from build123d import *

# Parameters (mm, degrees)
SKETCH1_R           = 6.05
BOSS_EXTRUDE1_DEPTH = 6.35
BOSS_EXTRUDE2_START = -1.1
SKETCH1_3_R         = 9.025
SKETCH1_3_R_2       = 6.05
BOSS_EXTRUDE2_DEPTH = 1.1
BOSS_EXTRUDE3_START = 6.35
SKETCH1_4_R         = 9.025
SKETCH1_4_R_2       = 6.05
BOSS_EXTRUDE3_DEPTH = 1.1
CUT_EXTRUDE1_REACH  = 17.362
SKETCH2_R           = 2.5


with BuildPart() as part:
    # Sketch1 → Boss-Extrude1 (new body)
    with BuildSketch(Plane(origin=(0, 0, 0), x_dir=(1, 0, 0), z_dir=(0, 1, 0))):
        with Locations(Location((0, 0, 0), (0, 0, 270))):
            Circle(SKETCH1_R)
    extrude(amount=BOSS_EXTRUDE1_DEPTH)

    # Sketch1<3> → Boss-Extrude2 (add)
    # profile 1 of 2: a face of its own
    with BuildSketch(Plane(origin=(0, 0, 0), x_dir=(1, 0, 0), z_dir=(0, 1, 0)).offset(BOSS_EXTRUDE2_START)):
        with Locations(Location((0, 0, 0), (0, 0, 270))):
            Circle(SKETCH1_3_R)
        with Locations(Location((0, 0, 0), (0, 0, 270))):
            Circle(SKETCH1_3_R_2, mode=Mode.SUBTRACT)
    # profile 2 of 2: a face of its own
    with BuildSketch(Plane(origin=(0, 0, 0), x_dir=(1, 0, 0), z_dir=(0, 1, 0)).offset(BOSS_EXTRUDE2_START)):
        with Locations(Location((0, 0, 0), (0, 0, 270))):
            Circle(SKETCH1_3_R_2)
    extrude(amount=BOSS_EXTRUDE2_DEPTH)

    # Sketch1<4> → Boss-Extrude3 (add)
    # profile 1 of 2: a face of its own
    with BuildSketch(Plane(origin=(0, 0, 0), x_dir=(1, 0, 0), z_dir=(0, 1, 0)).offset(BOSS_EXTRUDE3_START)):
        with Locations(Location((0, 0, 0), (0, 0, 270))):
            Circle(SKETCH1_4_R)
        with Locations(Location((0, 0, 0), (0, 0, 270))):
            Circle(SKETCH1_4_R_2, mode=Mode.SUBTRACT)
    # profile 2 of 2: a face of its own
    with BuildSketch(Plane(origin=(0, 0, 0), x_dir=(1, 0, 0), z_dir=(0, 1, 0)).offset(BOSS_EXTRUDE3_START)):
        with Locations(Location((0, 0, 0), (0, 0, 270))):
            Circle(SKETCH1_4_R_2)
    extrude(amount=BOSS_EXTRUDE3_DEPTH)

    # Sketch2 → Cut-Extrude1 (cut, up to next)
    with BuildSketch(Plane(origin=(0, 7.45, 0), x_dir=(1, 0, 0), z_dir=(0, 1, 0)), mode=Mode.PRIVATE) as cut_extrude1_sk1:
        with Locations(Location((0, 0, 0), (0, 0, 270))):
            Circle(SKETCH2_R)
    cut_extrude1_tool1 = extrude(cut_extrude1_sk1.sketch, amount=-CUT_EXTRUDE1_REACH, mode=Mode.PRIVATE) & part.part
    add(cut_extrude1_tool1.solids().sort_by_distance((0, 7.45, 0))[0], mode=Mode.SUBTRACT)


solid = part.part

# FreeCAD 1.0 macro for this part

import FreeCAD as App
import Part
import Sketcher
from FreeCAD import Vector

doc = App.newDocument("Part")
body = doc.addObject("PartDesign::Body", "Body")

# Sketch on XZ plane
sketch1 = body.newObject("Sketcher::SketchObject", "Sketch")
sketch1.AttachmentSupport = (doc.getObject("XZ_Plane"), [""])
sketch1.MapMode = "FlatFace"
sketch1.addGeometry(Part.Circle(Vector(0, 0, 0), Vector(0, 0, 1), 6), False)
sketch1.addConstraint([
    Sketcher.Constraint("Coincident", 0, 3, -1, 1),
    Sketcher.Constraint("Diameter", 0, 12.1),
])
pad1 = body.newObject("PartDesign::Pad", "Pad")
pad1.Profile = sketch1
pad1.Length = 6.35
pad1.Reversed = True

# Sketch on XZ plane
sketch2 = body.newObject("Sketcher::SketchObject", "Sketch001")
sketch2.AttachmentSupport = (doc.getObject("XZ_Plane"), [""])
sketch2.MapMode = "FlatFace"
sketch2.AttachmentOffset = App.Placement(Vector(0, 0, 1.1), App.Rotation())
sketch2.addGeometry(Part.Circle(Vector(0, 0, 0), Vector(0, 0, 1), 9), False)
sketch2.addConstraint([
    Sketcher.Constraint("Coincident", 0, 3, -1, 1),
    Sketcher.Constraint("Diameter", 0, 18.05),
])
pad2 = body.newObject("PartDesign::Pad", "Pad001")
pad2.Profile = sketch2
pad2.Length = 1.1
pad2.Reversed = True

# Sketch on XZ plane
sketch3 = body.newObject("Sketcher::SketchObject", "Sketch002")
sketch3.AttachmentSupport = (doc.getObject("XZ_Plane"), [""])
sketch3.MapMode = "FlatFace"
sketch3.AttachmentOffset = App.Placement(Vector(0, 0, -6.35), App.Rotation())
sketch3.addGeometry(Part.Circle(Vector(0, 0, 0), Vector(0, 0, 1), 9), False)
sketch3.addConstraint([
    Sketcher.Constraint("Coincident", 0, 3, -1, 1),
    Sketcher.Constraint("Diameter", 0, 18.05),
])
pad3 = body.newObject("PartDesign::Pad", "Pad002")
pad3.Profile = sketch3
pad3.Length = 1.1
pad3.Reversed = True

# Sketch on XZ plane
sketch4 = body.newObject("Sketcher::SketchObject", "Sketch003")
sketch4.AttachmentSupport = (doc.getObject("XZ_Plane"), [""])
sketch4.MapMode = "FlatFace"
sketch4.AttachmentOffset = App.Placement(Vector(0, 0, -7.45), App.Rotation())
sketch4.addGeometry(Part.Circle(Vector(0, 0, 0), Vector(0, 0, 1), 2.5), False)
sketch4.addConstraint([
    Sketcher.Constraint("Coincident", 0, 3, -1, 1),
    Sketcher.Constraint("Diameter", 0, 5.0),
])
pocket1 = body.newObject("PartDesign::Pocket", "Pocket")
pocket1.Profile = sketch4
pocket1.Type = "UpToFirst"
pocket1.Reversed = True

doc.recompute()
